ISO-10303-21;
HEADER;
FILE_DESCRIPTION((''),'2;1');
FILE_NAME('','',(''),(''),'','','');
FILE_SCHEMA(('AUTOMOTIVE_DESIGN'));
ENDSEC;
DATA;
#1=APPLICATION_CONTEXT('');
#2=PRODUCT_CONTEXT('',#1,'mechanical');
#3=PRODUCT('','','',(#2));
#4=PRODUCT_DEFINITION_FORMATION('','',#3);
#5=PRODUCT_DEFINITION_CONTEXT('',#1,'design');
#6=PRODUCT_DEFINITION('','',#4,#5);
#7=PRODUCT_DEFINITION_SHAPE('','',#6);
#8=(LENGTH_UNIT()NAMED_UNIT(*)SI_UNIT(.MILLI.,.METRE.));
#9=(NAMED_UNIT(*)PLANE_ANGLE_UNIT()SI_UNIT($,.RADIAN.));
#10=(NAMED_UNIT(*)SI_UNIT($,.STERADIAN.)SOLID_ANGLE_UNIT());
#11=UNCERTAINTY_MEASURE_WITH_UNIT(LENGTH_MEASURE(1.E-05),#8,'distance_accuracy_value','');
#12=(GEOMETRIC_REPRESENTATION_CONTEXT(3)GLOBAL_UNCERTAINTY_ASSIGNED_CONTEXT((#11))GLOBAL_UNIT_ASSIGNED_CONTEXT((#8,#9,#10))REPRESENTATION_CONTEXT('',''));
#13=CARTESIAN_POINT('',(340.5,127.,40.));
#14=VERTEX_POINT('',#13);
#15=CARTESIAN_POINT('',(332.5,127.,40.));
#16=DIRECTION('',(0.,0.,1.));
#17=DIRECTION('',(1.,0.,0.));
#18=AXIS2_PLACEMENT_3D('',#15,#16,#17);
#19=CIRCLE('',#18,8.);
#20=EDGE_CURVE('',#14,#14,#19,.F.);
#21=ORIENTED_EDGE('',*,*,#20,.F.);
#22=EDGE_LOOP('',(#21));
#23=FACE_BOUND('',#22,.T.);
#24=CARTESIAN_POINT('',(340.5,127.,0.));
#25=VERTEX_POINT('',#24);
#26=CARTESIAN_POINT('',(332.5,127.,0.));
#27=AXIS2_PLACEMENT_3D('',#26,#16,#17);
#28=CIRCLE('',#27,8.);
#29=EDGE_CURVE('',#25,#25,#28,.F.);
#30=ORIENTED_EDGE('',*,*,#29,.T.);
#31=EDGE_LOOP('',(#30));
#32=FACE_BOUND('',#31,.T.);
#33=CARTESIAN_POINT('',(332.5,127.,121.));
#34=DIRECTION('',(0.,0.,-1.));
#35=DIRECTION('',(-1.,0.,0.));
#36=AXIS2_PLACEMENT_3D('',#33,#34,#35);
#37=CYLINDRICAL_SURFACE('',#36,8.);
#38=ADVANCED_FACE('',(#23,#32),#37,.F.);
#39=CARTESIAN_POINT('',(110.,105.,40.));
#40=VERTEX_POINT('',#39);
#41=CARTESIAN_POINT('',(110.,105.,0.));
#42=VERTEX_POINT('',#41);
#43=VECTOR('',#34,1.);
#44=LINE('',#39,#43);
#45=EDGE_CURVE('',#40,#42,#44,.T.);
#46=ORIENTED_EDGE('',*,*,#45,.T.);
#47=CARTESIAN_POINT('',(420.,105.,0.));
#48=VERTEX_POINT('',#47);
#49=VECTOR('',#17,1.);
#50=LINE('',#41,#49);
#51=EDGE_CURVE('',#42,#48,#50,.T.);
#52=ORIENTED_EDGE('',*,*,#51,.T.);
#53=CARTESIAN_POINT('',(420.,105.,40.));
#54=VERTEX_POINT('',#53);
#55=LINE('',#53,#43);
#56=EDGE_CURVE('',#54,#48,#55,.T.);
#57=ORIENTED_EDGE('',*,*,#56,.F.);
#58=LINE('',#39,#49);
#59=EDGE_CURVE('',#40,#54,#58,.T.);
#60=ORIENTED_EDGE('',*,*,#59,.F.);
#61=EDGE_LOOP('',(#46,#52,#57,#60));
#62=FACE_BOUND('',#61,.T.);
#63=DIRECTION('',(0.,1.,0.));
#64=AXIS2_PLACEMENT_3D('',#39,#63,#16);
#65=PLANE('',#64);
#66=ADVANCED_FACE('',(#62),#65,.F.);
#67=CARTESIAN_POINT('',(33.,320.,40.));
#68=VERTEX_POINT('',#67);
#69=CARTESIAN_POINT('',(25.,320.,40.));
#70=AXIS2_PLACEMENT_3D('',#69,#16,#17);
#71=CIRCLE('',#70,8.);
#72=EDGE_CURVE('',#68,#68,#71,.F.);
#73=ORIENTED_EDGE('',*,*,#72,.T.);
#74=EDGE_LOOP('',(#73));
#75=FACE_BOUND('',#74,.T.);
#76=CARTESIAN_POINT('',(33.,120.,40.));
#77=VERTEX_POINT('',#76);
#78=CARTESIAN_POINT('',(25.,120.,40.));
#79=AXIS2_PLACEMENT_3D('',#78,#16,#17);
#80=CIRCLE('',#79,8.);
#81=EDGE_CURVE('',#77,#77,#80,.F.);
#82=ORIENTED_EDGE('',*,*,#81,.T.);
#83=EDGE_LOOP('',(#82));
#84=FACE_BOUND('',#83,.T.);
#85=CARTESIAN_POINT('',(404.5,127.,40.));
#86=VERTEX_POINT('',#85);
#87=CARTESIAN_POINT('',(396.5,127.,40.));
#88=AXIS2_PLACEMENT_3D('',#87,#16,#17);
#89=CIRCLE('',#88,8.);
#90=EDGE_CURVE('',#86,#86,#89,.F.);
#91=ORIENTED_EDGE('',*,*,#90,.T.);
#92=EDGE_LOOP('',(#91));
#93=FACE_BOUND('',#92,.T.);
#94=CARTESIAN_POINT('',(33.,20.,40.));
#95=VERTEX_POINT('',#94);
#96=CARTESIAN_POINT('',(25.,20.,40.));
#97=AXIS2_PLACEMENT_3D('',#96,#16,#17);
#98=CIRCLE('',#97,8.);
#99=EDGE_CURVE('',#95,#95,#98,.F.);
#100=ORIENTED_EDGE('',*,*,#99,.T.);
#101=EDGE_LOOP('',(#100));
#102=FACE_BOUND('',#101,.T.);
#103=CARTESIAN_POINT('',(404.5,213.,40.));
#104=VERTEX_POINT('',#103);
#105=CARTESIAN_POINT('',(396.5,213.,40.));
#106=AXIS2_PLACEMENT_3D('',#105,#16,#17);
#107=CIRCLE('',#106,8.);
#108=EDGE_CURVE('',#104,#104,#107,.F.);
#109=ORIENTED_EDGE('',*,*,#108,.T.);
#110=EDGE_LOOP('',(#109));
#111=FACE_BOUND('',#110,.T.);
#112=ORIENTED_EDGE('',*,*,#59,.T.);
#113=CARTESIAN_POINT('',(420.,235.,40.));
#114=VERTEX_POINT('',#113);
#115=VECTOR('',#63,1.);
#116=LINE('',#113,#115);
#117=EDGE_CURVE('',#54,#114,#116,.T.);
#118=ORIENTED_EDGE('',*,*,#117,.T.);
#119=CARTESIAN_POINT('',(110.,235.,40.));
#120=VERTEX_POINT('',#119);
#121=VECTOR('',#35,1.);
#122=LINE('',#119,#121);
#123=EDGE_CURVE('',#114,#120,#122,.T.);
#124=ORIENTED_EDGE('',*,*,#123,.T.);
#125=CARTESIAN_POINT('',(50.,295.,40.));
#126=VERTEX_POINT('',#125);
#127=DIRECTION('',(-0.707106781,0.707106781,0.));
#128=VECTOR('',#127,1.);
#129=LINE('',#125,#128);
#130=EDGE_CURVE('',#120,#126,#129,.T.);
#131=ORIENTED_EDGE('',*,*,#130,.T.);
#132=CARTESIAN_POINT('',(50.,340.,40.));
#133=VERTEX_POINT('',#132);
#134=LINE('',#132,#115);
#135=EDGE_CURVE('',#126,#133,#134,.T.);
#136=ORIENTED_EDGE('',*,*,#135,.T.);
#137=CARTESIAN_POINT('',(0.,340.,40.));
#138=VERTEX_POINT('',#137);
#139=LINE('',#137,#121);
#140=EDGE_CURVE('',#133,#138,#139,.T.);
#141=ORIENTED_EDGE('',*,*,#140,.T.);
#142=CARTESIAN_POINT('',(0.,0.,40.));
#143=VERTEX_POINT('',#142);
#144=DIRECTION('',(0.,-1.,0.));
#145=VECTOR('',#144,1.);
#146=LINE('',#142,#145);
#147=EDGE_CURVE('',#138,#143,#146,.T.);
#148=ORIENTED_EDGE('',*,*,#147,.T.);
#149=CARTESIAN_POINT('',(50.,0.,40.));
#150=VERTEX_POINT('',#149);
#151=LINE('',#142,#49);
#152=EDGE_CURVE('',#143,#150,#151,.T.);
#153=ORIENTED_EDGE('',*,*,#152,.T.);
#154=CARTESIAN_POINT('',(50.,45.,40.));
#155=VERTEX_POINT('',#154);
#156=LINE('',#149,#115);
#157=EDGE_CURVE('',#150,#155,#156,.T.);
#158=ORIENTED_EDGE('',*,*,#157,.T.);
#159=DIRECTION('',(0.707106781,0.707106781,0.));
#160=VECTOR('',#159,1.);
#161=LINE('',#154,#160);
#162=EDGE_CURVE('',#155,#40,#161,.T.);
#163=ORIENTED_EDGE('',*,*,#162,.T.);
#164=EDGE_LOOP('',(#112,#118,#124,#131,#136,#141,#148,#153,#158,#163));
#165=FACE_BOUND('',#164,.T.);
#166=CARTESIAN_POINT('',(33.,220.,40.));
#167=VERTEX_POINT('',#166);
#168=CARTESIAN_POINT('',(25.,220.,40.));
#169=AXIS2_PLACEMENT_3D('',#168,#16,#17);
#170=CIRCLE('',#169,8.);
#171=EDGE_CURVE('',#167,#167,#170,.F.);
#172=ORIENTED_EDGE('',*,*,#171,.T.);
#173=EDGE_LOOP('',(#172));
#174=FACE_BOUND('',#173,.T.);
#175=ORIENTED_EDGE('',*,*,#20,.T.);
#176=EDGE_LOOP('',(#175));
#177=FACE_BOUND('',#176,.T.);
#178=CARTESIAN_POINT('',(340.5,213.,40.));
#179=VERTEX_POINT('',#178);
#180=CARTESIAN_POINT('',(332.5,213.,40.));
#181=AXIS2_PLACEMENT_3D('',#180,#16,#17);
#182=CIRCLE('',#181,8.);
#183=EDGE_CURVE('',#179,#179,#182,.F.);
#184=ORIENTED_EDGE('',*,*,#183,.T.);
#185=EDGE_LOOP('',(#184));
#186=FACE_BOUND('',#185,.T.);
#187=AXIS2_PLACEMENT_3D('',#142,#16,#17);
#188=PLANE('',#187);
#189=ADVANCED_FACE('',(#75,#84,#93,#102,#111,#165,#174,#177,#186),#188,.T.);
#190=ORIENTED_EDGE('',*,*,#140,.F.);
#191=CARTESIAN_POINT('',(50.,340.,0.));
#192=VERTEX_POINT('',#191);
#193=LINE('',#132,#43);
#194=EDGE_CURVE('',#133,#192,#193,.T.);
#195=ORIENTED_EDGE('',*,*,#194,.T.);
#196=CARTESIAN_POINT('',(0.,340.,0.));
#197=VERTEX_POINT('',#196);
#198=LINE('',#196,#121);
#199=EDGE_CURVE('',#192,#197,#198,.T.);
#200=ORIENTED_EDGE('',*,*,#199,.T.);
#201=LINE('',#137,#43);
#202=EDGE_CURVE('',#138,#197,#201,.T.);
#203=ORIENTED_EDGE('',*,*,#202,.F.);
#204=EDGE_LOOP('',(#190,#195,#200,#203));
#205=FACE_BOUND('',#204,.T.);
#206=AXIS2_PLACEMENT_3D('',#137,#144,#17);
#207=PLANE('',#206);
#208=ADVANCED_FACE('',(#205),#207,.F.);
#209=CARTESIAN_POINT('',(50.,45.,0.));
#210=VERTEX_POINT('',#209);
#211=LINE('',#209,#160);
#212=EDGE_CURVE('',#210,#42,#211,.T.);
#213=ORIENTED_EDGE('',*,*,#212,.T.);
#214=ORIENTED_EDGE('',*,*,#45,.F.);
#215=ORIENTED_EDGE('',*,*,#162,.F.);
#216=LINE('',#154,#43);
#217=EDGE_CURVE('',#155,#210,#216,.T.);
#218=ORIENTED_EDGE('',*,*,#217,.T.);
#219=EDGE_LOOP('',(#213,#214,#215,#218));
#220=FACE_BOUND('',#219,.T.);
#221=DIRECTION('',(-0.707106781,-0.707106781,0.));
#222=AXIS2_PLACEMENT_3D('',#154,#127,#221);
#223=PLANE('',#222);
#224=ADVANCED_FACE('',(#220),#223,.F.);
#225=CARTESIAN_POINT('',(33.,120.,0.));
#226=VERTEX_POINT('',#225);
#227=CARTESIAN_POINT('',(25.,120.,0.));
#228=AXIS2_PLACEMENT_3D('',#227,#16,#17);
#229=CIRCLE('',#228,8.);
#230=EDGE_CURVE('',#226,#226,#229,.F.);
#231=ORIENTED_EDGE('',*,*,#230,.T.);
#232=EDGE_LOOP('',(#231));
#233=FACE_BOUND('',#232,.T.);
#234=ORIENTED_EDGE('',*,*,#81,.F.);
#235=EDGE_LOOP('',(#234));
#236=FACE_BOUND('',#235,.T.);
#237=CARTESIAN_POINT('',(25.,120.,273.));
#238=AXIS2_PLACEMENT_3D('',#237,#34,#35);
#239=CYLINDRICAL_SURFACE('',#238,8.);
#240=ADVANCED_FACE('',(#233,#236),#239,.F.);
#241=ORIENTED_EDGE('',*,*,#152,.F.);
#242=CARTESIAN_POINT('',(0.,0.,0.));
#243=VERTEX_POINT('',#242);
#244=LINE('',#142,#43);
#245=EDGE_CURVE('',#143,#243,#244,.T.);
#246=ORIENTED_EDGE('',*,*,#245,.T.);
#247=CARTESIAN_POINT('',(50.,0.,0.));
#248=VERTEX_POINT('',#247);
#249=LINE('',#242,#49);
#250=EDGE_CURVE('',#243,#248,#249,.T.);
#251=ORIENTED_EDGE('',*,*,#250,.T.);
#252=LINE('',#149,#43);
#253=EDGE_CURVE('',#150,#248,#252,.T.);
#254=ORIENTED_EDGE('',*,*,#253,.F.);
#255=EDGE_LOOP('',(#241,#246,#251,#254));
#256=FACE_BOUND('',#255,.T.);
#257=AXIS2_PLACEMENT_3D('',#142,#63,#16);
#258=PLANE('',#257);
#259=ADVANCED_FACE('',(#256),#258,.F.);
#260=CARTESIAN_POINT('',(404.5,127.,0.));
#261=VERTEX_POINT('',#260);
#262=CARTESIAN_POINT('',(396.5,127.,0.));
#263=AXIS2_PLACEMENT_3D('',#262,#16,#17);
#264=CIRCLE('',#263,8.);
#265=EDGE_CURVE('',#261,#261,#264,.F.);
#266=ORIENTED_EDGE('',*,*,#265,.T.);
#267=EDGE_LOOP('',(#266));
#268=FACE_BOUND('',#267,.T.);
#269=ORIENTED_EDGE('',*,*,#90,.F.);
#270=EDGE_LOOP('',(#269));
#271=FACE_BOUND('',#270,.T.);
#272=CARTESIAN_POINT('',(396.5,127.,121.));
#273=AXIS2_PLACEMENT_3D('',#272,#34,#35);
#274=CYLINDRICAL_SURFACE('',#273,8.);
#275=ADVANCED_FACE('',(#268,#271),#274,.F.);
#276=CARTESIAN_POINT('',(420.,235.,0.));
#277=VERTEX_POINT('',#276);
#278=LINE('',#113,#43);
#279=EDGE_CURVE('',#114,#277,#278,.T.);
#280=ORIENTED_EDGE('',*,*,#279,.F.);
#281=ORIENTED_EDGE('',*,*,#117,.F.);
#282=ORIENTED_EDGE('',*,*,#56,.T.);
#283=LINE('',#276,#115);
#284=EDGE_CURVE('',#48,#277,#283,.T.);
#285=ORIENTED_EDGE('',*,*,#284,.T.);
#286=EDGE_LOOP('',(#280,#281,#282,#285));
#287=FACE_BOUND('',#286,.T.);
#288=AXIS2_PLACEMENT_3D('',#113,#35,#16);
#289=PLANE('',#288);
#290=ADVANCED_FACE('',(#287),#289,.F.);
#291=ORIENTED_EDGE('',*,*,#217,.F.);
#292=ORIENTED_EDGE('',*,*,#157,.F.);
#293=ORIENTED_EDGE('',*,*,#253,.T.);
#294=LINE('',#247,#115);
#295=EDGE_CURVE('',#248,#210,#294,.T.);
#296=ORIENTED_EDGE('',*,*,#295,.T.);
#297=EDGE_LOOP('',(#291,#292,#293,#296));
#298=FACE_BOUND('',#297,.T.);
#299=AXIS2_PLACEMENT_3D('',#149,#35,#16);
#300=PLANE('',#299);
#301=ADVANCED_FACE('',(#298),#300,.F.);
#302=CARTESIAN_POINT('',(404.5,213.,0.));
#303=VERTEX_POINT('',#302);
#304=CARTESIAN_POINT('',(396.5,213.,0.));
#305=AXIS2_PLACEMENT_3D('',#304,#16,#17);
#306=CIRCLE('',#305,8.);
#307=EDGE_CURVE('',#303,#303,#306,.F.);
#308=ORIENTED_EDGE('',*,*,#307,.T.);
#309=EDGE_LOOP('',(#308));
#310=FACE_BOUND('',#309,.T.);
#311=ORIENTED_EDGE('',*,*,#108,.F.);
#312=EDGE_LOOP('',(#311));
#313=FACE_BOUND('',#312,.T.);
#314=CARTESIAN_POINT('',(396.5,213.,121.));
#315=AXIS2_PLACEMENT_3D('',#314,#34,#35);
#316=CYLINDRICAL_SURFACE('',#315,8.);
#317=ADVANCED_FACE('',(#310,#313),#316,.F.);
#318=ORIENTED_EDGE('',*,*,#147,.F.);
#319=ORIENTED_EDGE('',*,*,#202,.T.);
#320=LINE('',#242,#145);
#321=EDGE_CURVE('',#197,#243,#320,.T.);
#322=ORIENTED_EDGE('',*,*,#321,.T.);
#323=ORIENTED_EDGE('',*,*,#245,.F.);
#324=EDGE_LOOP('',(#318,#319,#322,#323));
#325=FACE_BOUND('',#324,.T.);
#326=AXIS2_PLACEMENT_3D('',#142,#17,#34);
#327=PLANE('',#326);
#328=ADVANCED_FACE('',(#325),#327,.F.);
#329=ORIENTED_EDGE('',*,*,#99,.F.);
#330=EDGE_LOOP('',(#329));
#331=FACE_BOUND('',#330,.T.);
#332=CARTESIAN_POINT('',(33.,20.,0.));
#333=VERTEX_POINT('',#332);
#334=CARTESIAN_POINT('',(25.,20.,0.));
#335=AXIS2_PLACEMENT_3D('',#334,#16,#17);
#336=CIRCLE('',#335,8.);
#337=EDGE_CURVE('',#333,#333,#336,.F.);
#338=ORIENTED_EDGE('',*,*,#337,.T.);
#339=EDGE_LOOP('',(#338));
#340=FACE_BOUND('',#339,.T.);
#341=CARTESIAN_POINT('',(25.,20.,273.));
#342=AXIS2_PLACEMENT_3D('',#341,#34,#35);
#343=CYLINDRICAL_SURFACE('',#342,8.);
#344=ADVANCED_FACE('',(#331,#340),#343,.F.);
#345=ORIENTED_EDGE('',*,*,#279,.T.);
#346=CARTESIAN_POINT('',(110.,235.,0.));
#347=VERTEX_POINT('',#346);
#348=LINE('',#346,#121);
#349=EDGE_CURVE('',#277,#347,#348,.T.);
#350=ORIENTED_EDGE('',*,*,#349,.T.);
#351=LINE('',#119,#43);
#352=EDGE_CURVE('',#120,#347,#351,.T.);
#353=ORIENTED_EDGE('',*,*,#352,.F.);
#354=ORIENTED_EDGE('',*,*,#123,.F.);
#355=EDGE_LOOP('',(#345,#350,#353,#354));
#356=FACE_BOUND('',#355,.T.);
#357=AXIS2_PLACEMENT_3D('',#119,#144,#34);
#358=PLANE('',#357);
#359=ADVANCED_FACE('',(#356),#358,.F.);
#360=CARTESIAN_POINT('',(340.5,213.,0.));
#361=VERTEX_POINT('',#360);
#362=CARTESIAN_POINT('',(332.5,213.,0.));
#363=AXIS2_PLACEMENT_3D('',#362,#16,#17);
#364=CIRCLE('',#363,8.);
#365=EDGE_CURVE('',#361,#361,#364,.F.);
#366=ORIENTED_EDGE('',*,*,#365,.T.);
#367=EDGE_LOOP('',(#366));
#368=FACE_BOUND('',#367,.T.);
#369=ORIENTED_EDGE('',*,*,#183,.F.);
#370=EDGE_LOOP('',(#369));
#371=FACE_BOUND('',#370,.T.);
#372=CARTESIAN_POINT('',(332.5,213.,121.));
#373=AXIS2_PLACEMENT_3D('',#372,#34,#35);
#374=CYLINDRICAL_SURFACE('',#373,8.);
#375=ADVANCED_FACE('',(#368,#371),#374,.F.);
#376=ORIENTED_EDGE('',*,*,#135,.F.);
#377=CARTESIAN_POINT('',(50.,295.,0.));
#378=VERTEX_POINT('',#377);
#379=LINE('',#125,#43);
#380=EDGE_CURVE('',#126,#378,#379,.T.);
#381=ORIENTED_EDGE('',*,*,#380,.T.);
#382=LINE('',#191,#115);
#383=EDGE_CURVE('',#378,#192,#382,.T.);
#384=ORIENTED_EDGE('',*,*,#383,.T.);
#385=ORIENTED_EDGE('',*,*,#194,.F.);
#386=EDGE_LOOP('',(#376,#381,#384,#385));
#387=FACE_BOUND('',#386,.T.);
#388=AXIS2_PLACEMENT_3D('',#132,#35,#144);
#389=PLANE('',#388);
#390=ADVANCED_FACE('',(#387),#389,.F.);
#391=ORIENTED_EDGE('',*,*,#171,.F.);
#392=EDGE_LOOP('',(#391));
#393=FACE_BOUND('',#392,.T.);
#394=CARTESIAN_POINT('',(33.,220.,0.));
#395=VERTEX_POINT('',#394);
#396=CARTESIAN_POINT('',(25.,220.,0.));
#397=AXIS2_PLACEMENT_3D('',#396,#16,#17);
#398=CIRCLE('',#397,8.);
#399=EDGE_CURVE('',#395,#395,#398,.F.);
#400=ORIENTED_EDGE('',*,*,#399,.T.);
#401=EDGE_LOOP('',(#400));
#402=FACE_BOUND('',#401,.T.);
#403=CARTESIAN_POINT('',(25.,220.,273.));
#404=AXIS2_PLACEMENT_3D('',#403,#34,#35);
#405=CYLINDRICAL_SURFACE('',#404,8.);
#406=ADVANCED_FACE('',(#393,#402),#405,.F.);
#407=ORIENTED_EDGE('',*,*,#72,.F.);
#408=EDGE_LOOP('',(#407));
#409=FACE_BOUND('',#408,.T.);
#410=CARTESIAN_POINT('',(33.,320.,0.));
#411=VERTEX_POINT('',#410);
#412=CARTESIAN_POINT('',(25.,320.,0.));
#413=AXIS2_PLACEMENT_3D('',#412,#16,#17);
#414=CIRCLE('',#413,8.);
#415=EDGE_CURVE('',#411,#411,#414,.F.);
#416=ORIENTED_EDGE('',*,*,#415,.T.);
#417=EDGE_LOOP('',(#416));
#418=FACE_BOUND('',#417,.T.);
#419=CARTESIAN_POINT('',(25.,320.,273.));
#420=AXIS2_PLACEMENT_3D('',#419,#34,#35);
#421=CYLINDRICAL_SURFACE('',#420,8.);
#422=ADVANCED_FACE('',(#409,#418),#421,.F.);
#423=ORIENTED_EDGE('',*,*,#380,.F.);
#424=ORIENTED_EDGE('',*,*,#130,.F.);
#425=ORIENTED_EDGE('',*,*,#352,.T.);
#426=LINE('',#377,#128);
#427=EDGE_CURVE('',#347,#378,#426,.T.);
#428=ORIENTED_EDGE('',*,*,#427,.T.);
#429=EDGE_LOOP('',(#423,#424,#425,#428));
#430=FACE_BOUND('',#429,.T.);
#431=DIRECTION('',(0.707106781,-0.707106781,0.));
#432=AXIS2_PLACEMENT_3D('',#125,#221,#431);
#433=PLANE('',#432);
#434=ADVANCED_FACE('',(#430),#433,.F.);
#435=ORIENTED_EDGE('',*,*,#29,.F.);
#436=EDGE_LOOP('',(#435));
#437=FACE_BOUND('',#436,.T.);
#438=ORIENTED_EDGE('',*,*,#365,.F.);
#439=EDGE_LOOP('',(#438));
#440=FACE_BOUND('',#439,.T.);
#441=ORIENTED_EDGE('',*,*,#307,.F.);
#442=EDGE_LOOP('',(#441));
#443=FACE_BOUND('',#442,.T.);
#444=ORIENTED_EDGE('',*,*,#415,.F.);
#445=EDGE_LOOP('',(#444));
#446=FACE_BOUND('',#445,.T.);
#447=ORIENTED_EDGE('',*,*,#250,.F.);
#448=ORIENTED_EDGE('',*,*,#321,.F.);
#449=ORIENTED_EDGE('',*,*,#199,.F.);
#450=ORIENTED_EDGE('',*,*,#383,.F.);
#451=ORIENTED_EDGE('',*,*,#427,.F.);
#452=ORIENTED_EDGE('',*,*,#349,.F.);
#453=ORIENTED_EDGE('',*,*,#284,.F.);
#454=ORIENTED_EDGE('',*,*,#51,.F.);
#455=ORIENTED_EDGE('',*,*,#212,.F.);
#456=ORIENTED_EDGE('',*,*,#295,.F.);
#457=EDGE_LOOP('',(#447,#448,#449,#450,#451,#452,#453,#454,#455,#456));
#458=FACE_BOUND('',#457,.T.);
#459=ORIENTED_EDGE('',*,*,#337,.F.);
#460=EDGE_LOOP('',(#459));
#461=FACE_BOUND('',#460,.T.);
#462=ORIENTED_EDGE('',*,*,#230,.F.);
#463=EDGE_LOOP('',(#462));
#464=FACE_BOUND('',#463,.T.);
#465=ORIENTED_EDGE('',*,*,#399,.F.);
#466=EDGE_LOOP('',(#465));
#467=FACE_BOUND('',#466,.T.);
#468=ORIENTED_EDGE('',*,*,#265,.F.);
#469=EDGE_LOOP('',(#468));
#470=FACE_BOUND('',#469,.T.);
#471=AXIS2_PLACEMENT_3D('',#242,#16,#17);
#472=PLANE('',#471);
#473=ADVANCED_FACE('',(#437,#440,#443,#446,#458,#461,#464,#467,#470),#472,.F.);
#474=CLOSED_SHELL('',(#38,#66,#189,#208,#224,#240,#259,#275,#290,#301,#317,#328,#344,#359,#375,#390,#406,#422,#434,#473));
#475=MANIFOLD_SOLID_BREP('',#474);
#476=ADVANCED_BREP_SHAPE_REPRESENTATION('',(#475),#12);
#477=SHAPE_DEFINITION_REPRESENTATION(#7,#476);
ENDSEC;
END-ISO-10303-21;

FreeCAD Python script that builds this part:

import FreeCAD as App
import Part
import Sketcher
Q = App.Units.Quantity

doc = App.newDocument("Part")
body = doc.addObject("PartDesign::Body", "Body")

sketch1 = body.newObject("Sketcher::SketchObject", "Sketch")
sketch1.AttachmentSupport = (doc.getObject("XY_Plane"), [""])
sketch1.MapMode = "FlatFace"
sketch1.addGeometry([
    Part.LineSegment(App.Vector(0, 340, 0), App.Vector(0, 0, 0)),
    Part.LineSegment(App.Vector(0, 0, 0), App.Vector(50, 0, 0)),
    Part.LineSegment(App.Vector(50, 0, 0), App.Vector(50, 45, 0)),
    Part.LineSegment(App.Vector(50, 45, 0), App.Vector(110, 105, 0)),
    Part.LineSegment(App.Vector(110, 105, 0), App.Vector(420, 105, 0)),
    Part.LineSegment(App.Vector(420, 105, 0), App.Vector(420, 235, 0)),
    Part.LineSegment(App.Vector(420, 235, 0), App.Vector(110, 235, 0)),
    Part.LineSegment(App.Vector(110, 235, 0), App.Vector(50, 295, 0)),
    Part.LineSegment(App.Vector(50, 295, 0), App.Vector(50, 340, 0)),
    Part.LineSegment(App.Vector(50, 340, 0), App.Vector(0, 340, 0)),
], False)
sketch1.addConstraint([
    Sketcher.Constraint("Coincident", 0, 2, 1, 1),
    Sketcher.Constraint("Coincident", 1, 2, 2, 1),
    Sketcher.Constraint("Coincident", 2, 2, 3, 1),
    Sketcher.Constraint("Coincident", 3, 2, 4, 1),
    Sketcher.Constraint("Coincident", 4, 2, 5, 1),
    Sketcher.Constraint("Coincident", 5, 2, 6, 1),
    Sketcher.Constraint("Coincident", 6, 2, 7, 1),
    Sketcher.Constraint("Coincident", 7, 2, 8, 1),
    Sketcher.Constraint("Coincident", 8, 2, 9, 1),
    Sketcher.Constraint("Coincident", 9, 2, 0, 1),
    Sketcher.Constraint("Vertical", 0),
    Sketcher.Constraint("Horizontal", 1),
    Sketcher.Constraint("Vertical", 2),
    Sketcher.Constraint("Horizontal", 4),
    Sketcher.Constraint("Vertical", 5),
    Sketcher.Constraint("Horizontal", 6),
    Sketcher.Constraint("Vertical", 8),
    Sketcher.Constraint("Horizontal", 9),
    Sketcher.Constraint("Coincident", 0, 2, -1, 1),
    Sketcher.Constraint("Perpendicular", 3, 7),
    Sketcher.Constraint("Vertical", 3, 2, 6, 2),
    Sketcher.Constraint("Vertical", 2, 2, 7, 2),
    Sketcher.Constraint("Equal", 2, 8),
    Sketcher.Constraint("Equal", 3, 7),
    Sketcher.Constraint("DistanceX", 1, 1, 1, 2, Q("50 mm")),
    Sketcher.Constraint("DistanceX", 4, 1, 4, 2, Q("310 mm")),
    Sketcher.Constraint("DistanceY", 0, 2, 0, 1, Q("340 mm")),
    Sketcher.Constraint("DistanceY", 2, 1, 2, 2, Q("45 mm")),
    Sketcher.Constraint("DistanceY", 5, 1, 5, 2, Q("130 mm")),
])
pad1 = body.newObject("PartDesign::Pad", "Pad")
pad1.Profile = sketch1
pad1.Length = 40

sketch2 = body.newObject("Sketcher::SketchObject", "Sketch001")
sketch2.AttachmentSupport = (doc.getObject("XY_Plane"), [""])
sketch2.MapMode = "FlatFace"
sketch2.AttachmentOffset = App.Placement(App.Vector(0, 0, 40), App.Rotation())
sketch2.addGeometry([
    Part.Circle(App.Vector(25, 320, 0), App.Vector(0, 0, 1), 8),
    Part.Circle(App.Vector(25, 220, 0), App.Vector(0, 0, 1), 8),
    Part.Circle(App.Vector(25, 120, 0), App.Vector(0, 0, 1), 8),
    Part.Circle(App.Vector(25, 20, 0), App.Vector(0, 0, 1), 8),
], False)
sketch2.addConstraint([
    Sketcher.Constraint("Equal", 0, 1),
    Sketcher.Constraint("Equal", 1, 2),
    Sketcher.Constraint("Equal", 2, 3),
    Sketcher.Constraint("Vertical", 0, 3, 1, 3),
    Sketcher.Constraint("Vertical", 1, 3, 2, 3),
    Sketcher.Constraint("Vertical", 2, 3, 3, 3),
    Sketcher.Constraint("Diameter", 0, Q("16 mm")),
    Sketcher.Constraint("DistanceX", -1, 1, 0, 3, Q("25 mm")),
    Sketcher.Constraint("DistanceY", -1, 1, 0, 3, Q("320 mm")),
    Sketcher.Constraint("DistanceY", -1, 1, 1, 3, Q("220 mm")),
    Sketcher.Constraint("DistanceY", -1, 1, 2, 3, Q("120 mm")),
    Sketcher.Constraint("DistanceY", -1, 1, 3, 3, Q("20 mm")),
])
pocket1 = body.newObject("PartDesign::Pocket", "Pocket")
pocket1.Profile = sketch2
pocket1.Type = "ThroughAll"
pocket1.Midplane = True

sketch3 = body.newObject("Sketcher::SketchObject", "Sketch002")
sketch3.AttachmentSupport = (doc.getObject("XY_Plane"), [""])
sketch3.MapMode = "FlatFace"
sketch3.AttachmentOffset = App.Placement(App.Vector(0, 0, 40), App.Rotation())
sketch3.addGeometry([
    Part.Circle(App.Vector(396.5, 213, 0), App.Vector(0, 0, 1), 8),
    Part.Circle(App.Vector(332.5, 213, 0), App.Vector(0, 0, 1), 8),
    Part.Circle(App.Vector(332.5, 127, 0), App.Vector(0, 0, 1), 8),
    Part.Circle(App.Vector(396.5, 127, 0), App.Vector(0, 0, 1), 8),
], False)
sketch3.addConstraint([
    Sketcher.Constraint("Equal", 0, 1),
    Sketcher.Constraint("Equal", 1, 2),
    Sketcher.Constraint("Equal", 2, 3),
    Sketcher.Constraint("Horizontal", 0, 3, 1, 3),
    Sketcher.Constraint("Horizontal", 2, 3, 3, 3),
    Sketcher.Constraint("Vertical", 1, 3, 2, 3),
    Sketcher.Constraint("Vertical", 0, 3, 3, 3),
    Sketcher.Constraint("Diameter", 0, Q("16 mm")),
    Sketcher.Constraint("DistanceY", -1, 1, 0, 3, Q("213 mm")),
    Sketcher.Constraint("DistanceY", -1, 1, 2, 3, Q("127 mm")),
    Sketcher.Constraint("DistanceX", 1, 3, 0, 3, Q("64 mm")),
    Sketcher.Constraint("DistanceX", -1, 1, 0, 3, Q("396.5 mm")),
])
pocket2 = body.newObject("PartDesign::Pocket", "Pocket001")
pocket2.Profile = sketch3
pocket2.Type = "ThroughAll"
pocket2.Midplane = True

doc.recompute()
